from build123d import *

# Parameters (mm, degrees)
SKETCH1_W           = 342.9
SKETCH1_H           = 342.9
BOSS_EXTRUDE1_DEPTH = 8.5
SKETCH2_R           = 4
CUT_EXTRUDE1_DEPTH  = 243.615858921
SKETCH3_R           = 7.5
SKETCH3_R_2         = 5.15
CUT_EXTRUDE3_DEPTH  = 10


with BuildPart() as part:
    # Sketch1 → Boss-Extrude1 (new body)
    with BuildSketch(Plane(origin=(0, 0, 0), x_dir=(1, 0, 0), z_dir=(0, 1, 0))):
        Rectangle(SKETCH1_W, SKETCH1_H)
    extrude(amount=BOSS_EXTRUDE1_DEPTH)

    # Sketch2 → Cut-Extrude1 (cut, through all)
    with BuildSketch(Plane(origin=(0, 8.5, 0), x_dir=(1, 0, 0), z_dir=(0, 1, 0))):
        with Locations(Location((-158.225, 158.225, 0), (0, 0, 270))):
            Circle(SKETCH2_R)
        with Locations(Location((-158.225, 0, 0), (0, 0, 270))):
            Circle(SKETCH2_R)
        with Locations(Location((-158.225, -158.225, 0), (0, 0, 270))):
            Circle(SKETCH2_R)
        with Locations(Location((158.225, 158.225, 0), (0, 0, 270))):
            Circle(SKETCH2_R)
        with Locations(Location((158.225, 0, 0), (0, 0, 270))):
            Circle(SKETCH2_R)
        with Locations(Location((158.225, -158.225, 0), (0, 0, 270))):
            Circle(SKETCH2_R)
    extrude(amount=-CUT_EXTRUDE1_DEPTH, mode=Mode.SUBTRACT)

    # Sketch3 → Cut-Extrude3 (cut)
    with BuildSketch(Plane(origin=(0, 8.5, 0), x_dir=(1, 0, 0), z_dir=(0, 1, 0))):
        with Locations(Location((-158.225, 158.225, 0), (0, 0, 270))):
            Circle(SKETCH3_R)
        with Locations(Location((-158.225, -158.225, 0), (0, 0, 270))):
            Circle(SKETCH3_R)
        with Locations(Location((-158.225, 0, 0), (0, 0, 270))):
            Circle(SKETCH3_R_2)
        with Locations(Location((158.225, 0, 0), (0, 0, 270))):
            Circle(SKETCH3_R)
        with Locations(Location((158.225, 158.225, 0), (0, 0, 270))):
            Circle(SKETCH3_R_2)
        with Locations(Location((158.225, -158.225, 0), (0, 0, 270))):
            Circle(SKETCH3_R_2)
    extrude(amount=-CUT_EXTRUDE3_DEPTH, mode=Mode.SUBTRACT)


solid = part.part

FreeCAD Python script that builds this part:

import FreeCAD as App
import Part
import Sketcher

V = App.Vector


def add_polygon(sketch, points):
    """Adds a closed chain of lines whose ends are joined by coincident constraints."""
    first, n = sketch.GeometryCount, len(points)
    for a, b in zip(points, points[1:] + points[:1]):
        sketch.addGeometry(Part.LineSegment(App.Vector(*a, 0), App.Vector(*b, 0)), False)
    for i in range(n):
        sketch.addConstraint(Sketcher.Constraint("Coincident", first + i, 2, first + (i + 1) % n, 1))

doc = App.newDocument("Part")
body = doc.addObject("PartDesign::Body", "Body")

sketch1 = body.newObject("Sketcher::SketchObject", "Sketch")
sketch1.AttachmentSupport = (doc.getObject("XZ_Plane"), [""])
sketch1.MapMode = "FlatFace"
add_polygon(sketch1, [(-171.45, -171.45), (-171.45, 171.45), (171.45, 171.45), (171.45, -171.45)])
sketch1.addConstraint(Sketcher.Constraint("Vertical", 0))
sketch1.addConstraint(Sketcher.Constraint("Horizontal", 1))
sketch1.addConstraint(Sketcher.Constraint("Vertical", 2))
sketch1.addConstraint(Sketcher.Constraint("Horizontal", 3))
sketch1.addConstraint(Sketcher.Constraint("Symmetric", 0, 2, 2, 2, -1, 1))
sketch1.addConstraint(Sketcher.Constraint("Equal", 3, 0))
sketch1.addConstraint(Sketcher.Constraint("DistanceX", 1, 1, 1, 2, 342.9))
pad1 = body.newObject("PartDesign::Pad", "Pad")
pad1.Profile = sketch1
pad1.Length = 8.5
pad1.Reversed = True

sketch2 = body.newObject("Sketcher::SketchObject", "Sketch001")
sketch2.AttachmentSupport = (doc.getObject("XZ_Plane"), [""])
sketch2.MapMode = "FlatFace"
sketch2.AttachmentOffset = App.Placement(V(0, 0, -8.5), App.Rotation())
sketch2.addGeometry(Part.Circle(V(-158.225, -158.225, 0), V(0, 0, 1), 4), False)
sketch2.addGeometry(Part.Circle(V(-158.225, 0, 0), V(0, 0, 1), 4), False)
sketch2.addGeometry(Part.Circle(V(-158.225, 158.225, 0), V(0, 0, 1), 4), False)
sketch2.addGeometry(Part.Circle(V(158.225, -158.225, 0), V(0, 0, 1), 4), False)
sketch2.addGeometry(Part.Circle(V(158.225, 0, 0), V(0, 0, 1), 4), False)
sketch2.addGeometry(Part.Circle(V(158.225, 158.225, 0), V(0, 0, 1), 4), False)
sketch2.addConstraint(Sketcher.Constraint("Equal", 0, 1))
sketch2.addConstraint(Sketcher.Constraint("Equal", 1, 2))
sketch2.addConstraint(Sketcher.Constraint("Equal", 2, 3))
sketch2.addConstraint(Sketcher.Constraint("Equal", 3, 4))
sketch2.addConstraint(Sketcher.Constraint("Equal", 4, 5))
sketch2.addConstraint(Sketcher.Constraint("Symmetric", 2, 3, 3, 3, -1, 1))
sketch2.addConstraint(Sketcher.Constraint("Symmetric", 1, 3, 4, 3, -1, 1))
sketch2.addConstraint(Sketcher.Constraint("Symmetric", 0, 3, 5, 3, -1, 1))
sketch2.addConstraint(Sketcher.Constraint("Symmetric", 0, 3, 3, 3, -2))
sketch2.addConstraint(Sketcher.Constraint("PointOnObject", 1, 3, -1))
sketch2.addConstraint(Sketcher.Constraint("Vertical", 0, 3, 1, 3))
sketch2.addConstraint(Sketcher.Constraint("Diameter", 0, 8.0))
sketch2.addConstraint(Sketcher.Constraint("DistanceY", 0, 3, 2, 3, 316.45))
sketch2.addConstraint(Sketcher.Constraint("DistanceX", 0, 3, 3, 3, 316.45))
pocket1 = body.newObject("PartDesign::Pocket", "Pocket")
pocket1.Profile = sketch2
pocket1.Type = "ThroughAll"
pocket1.Reversed = True

sketch3 = body.newObject("Sketcher::SketchObject", "Sketch002")
sketch3.AttachmentSupport = (doc.getObject("XZ_Plane"), [""])
sketch3.MapMode = "FlatFace"
sketch3.AttachmentOffset = App.Placement(V(0, 0, -8.5), App.Rotation())
sketch3.addGeometry(Part.Circle(V(-158.225, -158.225, 0), V(0, 0, 1), 7.5), False)
sketch3.addGeometry(Part.Circle(V(-158.225, 158.225, 0), V(0, 0, 1), 7.5), False)
sketch3.addGeometry(Part.Circle(V(-158.225, 0, 0), V(0, 0, 1), 5.15), False)
sketch3.addGeometry(Part.Circle(V(158.225, 0, 0), V(0, 0, 1), 7.5), False)
sketch3.addGeometry(Part.Circle(V(158.225, -158.225, 0), V(0, 0, 1), 5.15), False)
sketch3.addGeometry(Part.Circle(V(158.225, 158.225, 0), V(0, 0, 1), 5.15), False)
sketch3.addConstraint(Sketcher.Constraint("Equal", 0, 1))
sketch3.addConstraint(Sketcher.Constraint("Equal", 1, 3))
sketch3.addConstraint(Sketcher.Constraint("Equal", 2, 4))
sketch3.addConstraint(Sketcher.Constraint("Equal", 4, 5))
sketch3.addConstraint(Sketcher.Constraint("Symmetric", 2, 3, 3, 3, -1, 1))
sketch3.addConstraint(Sketcher.Constraint("Symmetric", 1, 3, 4, 3, -1, 1))
sketch3.addConstraint(Sketcher.Constraint("Symmetric", 0, 3, 5, 3, -1, 1))
sketch3.addConstraint(Sketcher.Constraint("Symmetric", 0, 3, 4, 3, -2))
sketch3.addConstraint(Sketcher.Constraint("PointOnObject", 2, 3, -1))
sketch3.addConstraint(Sketcher.Constraint("Vertical", 1, 3, 2, 3))
sketch3.addConstraint(Sketcher.Constraint("Diameter", 0, 15.0))
sketch3.addConstraint(Sketcher.Constraint("Diameter", 2, 10.3))
sketch3.addConstraint(Sketcher.Constraint("DistanceY", 0, 3, 1, 3, 316.45))
sketch3.addConstraint(Sketcher.Constraint("DistanceX", 2, 3, 3, 3, 316.45))
pocket2 = body.newObject("PartDesign::Pocket", "Pocket001")
pocket2.Profile = sketch3
pocket2.Length = 10
pocket2.Reversed = True

doc.recompute()
